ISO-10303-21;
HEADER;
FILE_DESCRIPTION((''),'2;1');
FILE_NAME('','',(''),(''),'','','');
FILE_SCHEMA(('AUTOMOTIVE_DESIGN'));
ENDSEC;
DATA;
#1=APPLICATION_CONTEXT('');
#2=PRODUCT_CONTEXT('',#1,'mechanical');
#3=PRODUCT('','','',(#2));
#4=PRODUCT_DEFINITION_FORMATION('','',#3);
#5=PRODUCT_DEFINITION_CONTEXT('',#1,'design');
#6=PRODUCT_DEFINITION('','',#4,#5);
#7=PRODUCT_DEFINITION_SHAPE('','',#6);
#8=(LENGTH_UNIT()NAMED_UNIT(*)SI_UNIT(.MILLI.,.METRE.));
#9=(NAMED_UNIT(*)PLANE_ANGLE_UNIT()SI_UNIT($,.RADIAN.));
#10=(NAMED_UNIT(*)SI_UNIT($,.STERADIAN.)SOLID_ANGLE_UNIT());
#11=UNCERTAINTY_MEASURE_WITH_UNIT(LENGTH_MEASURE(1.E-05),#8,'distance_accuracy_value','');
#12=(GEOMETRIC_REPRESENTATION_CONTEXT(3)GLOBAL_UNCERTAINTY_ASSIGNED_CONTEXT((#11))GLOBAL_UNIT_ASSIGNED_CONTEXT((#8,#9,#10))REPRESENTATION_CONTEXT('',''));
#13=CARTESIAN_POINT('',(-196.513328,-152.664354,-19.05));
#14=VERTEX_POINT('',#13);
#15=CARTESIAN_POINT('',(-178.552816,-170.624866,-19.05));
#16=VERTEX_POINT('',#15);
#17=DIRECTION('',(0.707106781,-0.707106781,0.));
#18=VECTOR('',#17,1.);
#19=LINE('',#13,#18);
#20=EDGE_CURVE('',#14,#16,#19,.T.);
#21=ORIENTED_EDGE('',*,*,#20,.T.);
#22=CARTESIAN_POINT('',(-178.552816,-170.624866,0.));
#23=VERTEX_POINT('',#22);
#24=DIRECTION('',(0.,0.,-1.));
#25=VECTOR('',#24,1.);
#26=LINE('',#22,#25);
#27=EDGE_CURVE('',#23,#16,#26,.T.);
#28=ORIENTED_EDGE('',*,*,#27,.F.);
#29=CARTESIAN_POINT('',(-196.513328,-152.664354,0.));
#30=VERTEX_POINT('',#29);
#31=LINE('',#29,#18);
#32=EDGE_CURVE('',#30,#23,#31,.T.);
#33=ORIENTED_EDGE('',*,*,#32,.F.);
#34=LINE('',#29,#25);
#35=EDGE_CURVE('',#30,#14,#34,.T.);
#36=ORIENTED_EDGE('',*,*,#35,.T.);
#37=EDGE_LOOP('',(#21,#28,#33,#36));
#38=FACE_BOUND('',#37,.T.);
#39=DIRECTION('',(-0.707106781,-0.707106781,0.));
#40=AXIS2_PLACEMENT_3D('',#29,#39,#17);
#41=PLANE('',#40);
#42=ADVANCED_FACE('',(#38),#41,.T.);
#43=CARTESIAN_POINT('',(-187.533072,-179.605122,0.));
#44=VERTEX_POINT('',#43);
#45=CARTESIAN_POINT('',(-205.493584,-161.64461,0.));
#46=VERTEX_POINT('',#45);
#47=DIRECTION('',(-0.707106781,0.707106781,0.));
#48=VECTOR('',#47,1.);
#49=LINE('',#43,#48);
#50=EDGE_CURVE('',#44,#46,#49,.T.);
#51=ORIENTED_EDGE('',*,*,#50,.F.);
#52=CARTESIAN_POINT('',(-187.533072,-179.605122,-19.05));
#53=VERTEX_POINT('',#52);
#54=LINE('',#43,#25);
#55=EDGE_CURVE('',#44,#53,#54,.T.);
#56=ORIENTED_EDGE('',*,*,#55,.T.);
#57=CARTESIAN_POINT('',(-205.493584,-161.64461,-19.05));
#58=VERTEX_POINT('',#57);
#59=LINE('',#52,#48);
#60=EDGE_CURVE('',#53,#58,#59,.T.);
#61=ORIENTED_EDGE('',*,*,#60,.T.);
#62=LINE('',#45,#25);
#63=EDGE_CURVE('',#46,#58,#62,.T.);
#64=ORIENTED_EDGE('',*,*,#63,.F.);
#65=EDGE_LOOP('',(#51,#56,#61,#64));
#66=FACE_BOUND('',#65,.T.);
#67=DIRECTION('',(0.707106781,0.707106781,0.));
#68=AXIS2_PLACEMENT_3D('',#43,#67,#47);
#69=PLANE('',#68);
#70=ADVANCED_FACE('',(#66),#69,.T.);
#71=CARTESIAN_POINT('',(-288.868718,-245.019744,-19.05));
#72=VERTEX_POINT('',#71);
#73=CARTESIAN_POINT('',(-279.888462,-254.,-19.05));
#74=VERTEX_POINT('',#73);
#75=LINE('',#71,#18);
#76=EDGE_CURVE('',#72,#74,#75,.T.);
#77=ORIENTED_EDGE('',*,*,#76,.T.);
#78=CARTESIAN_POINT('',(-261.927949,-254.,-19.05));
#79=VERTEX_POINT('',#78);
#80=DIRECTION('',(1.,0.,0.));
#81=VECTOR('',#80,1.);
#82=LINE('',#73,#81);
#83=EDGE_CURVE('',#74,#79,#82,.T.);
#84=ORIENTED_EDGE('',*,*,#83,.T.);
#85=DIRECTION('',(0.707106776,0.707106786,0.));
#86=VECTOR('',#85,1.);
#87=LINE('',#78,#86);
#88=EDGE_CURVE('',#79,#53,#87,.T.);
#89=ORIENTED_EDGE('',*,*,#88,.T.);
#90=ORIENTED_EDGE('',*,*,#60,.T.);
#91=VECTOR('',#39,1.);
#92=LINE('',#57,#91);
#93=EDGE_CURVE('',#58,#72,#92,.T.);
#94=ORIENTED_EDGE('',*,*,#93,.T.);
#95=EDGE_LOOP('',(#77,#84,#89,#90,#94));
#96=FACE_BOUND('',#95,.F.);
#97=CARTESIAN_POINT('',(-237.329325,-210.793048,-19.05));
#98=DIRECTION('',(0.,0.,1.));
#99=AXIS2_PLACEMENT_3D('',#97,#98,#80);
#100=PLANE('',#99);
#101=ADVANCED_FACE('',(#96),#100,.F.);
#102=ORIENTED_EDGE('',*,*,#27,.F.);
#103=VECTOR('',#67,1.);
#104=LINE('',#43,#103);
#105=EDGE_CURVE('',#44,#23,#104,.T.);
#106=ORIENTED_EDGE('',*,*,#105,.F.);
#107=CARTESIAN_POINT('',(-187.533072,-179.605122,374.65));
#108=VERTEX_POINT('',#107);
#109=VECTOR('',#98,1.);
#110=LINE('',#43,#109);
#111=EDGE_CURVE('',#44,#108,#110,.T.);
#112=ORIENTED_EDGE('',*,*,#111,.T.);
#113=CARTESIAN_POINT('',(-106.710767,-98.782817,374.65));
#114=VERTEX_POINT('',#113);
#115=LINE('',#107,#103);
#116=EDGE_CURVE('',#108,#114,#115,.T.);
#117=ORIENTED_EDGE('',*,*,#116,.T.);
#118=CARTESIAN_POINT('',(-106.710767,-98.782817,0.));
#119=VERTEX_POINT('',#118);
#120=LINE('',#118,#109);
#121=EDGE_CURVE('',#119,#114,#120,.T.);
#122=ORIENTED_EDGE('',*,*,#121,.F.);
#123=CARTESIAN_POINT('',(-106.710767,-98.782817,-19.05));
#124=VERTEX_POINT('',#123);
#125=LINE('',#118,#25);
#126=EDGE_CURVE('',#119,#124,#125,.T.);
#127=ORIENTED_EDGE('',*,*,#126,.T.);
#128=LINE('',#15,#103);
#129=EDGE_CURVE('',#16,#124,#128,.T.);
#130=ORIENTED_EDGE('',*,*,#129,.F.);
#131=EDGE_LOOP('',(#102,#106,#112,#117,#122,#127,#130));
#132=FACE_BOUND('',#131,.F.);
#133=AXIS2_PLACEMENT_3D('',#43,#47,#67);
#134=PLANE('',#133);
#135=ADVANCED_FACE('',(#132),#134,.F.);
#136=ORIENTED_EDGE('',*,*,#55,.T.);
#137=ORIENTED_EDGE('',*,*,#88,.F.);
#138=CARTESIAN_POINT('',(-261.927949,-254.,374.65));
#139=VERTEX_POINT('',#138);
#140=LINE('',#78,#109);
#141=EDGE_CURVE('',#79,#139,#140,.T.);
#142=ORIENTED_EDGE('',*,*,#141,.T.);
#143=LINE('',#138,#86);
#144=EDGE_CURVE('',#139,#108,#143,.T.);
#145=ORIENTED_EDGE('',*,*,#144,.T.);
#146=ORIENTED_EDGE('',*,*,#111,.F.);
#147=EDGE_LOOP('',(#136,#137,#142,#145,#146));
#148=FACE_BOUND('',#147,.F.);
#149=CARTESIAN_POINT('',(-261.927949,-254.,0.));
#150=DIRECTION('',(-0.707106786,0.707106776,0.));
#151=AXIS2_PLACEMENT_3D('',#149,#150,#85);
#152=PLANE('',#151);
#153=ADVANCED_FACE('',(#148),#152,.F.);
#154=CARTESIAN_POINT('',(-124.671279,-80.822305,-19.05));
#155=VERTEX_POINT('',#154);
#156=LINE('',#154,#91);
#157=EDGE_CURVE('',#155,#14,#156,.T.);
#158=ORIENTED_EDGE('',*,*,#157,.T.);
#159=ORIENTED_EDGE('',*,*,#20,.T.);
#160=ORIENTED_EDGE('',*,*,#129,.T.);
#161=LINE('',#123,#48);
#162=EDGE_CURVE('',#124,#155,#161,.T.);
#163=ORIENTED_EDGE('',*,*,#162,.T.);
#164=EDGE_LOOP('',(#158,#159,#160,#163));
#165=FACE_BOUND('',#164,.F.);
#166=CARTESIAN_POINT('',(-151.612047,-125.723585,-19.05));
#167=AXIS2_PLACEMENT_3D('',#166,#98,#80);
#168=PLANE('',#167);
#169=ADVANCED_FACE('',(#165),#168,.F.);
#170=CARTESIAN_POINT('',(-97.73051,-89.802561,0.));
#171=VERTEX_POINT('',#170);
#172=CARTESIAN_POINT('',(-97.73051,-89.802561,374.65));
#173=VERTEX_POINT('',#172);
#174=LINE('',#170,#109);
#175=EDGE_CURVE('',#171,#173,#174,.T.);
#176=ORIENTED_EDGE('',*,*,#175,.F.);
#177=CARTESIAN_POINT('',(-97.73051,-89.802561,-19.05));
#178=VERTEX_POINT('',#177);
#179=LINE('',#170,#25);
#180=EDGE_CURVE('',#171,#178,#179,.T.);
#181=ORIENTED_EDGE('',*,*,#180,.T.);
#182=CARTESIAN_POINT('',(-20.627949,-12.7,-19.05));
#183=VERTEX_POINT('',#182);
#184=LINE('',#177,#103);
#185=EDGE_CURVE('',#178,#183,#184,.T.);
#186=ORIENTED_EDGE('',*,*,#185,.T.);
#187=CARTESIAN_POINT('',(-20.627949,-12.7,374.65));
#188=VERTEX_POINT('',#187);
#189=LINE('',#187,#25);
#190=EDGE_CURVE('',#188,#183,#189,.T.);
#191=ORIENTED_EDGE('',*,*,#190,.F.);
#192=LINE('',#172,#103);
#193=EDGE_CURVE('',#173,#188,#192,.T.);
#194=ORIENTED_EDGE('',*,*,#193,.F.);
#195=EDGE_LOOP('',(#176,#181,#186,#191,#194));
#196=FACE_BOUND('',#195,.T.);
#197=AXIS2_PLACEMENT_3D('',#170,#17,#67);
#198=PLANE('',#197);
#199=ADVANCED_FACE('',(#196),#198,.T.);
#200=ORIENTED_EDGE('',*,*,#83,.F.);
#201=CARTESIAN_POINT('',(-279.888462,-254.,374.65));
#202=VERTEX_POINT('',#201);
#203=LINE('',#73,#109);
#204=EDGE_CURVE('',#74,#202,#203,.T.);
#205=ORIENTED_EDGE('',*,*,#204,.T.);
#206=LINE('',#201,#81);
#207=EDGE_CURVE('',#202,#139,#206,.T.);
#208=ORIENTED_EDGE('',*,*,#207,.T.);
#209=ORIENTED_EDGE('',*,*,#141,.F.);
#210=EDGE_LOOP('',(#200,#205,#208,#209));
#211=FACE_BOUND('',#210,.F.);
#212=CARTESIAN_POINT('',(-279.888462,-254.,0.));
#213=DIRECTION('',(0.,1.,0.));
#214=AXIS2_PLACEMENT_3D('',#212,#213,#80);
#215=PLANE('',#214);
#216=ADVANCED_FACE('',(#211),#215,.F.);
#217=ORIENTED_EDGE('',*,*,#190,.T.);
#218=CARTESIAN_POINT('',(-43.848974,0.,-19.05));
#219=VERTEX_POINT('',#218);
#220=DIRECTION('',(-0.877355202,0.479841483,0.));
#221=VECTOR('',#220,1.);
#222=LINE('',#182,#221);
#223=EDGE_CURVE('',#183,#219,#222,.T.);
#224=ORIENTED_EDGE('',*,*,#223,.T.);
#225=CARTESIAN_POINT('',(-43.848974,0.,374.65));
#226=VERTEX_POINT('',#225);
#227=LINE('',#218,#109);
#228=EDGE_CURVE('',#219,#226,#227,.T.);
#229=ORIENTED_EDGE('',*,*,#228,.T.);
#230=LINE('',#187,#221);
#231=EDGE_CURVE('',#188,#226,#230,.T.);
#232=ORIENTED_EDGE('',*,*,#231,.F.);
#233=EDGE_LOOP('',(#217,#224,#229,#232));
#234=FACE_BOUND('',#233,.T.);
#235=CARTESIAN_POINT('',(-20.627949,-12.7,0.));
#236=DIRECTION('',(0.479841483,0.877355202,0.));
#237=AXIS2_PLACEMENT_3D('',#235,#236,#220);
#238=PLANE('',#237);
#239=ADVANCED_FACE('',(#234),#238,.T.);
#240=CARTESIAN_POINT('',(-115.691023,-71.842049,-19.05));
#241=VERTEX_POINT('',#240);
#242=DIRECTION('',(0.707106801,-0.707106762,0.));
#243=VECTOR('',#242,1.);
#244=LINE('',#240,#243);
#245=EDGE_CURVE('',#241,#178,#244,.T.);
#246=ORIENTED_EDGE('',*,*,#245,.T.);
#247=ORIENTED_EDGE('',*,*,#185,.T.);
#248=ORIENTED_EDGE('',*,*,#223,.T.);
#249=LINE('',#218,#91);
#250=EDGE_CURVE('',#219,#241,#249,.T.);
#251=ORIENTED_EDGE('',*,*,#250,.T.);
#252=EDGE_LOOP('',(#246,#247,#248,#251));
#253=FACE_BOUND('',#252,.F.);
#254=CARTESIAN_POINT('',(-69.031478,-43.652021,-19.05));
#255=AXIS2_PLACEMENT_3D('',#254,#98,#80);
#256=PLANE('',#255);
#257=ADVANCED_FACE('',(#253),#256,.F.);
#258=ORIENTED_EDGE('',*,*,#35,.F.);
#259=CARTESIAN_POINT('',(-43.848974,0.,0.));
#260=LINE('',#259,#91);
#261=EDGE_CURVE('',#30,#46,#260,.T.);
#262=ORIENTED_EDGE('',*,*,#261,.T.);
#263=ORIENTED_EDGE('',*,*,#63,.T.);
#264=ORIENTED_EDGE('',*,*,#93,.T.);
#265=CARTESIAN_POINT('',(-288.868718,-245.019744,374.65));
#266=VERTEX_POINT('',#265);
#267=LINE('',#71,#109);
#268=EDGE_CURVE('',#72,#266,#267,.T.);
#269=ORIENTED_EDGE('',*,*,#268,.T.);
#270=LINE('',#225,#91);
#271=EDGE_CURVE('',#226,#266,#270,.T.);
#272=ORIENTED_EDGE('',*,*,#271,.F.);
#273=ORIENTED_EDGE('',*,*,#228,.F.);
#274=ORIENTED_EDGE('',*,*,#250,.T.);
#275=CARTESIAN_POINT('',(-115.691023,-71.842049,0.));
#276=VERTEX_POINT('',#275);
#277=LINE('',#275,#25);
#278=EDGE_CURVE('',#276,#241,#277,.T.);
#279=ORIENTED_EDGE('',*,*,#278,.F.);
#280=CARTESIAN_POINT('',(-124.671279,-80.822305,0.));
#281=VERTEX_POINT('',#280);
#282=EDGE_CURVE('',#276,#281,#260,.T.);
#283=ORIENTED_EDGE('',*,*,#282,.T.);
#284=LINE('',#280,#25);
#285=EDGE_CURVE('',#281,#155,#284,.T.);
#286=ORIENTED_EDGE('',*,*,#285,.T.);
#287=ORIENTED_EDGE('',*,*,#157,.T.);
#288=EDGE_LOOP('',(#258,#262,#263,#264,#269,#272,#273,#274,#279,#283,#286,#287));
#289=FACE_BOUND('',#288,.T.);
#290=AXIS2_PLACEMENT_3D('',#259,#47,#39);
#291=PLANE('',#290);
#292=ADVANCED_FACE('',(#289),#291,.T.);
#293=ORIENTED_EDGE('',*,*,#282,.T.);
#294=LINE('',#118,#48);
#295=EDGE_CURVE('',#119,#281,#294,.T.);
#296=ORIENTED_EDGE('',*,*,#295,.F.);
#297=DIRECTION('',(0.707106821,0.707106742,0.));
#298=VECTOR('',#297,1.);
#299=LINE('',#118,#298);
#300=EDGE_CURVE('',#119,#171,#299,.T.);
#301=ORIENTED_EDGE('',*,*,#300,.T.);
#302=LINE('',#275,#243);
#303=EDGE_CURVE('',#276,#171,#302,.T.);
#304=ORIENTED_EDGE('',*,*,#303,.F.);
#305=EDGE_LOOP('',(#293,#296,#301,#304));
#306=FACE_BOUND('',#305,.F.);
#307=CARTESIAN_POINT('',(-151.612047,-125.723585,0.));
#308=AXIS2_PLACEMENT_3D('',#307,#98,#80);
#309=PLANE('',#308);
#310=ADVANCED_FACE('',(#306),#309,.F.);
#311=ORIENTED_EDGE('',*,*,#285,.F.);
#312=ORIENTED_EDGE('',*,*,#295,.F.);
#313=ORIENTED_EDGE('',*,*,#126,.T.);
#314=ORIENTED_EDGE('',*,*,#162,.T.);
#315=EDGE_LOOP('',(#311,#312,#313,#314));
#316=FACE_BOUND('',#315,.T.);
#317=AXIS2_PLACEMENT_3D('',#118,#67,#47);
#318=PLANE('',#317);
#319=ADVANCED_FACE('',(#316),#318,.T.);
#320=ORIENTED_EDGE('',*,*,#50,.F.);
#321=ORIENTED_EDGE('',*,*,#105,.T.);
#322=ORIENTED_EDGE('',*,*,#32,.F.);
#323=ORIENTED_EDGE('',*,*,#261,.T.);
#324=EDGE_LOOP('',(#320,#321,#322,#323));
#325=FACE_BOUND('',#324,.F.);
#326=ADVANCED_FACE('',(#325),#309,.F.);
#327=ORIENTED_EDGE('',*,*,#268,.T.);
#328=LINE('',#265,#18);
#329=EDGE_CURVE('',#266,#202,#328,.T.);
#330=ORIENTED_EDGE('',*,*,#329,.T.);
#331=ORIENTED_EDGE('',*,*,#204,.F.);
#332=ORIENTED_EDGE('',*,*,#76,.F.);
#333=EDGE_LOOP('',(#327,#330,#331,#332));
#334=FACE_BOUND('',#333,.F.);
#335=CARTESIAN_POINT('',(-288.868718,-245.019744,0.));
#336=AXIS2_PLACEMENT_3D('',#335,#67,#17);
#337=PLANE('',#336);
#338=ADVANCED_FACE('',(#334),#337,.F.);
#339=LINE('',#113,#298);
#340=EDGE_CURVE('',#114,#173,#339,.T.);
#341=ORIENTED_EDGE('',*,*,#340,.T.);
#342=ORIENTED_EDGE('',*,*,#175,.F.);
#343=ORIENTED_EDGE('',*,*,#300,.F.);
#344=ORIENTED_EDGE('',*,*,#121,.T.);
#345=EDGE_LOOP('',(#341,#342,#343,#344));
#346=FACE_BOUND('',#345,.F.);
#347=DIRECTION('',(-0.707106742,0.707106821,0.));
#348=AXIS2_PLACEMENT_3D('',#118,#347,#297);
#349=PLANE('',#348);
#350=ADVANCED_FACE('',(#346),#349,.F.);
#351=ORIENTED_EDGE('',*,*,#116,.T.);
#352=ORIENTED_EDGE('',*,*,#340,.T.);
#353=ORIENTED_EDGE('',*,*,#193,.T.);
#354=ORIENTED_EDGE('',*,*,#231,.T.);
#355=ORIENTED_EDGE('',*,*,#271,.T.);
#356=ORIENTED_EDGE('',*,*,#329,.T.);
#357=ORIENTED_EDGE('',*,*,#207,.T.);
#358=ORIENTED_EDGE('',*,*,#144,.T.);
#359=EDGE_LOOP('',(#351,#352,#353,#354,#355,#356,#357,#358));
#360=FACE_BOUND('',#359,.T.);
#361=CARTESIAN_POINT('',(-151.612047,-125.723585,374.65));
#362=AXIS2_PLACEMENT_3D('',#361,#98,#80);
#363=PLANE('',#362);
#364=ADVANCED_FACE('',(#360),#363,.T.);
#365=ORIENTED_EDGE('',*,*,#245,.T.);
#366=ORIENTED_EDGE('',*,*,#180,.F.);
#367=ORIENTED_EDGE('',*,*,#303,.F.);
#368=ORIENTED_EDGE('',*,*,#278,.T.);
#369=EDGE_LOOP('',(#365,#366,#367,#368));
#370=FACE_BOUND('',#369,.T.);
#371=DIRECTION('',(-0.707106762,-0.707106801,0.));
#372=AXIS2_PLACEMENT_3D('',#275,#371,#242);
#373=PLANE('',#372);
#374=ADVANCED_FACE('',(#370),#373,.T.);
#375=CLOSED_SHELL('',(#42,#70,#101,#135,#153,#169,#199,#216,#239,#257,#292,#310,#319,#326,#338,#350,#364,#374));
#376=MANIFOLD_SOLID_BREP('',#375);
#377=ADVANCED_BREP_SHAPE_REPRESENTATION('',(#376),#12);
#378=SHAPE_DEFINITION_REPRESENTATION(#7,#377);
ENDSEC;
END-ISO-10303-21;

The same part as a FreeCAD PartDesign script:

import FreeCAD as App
import Part
import Sketcher

V = App.Vector
Q = App.Units.Quantity


def add_polygon(sketch, points):
    """Adds a closed chain of lines whose ends are joined by coincident constraints."""
    first, n = sketch.GeometryCount, len(points)
    for a, b in zip(points, points[1:] + points[:1]):
        sketch.addGeometry(Part.LineSegment(App.Vector(*a, 0), App.Vector(*b, 0)), False)
    for i in range(n):
        sketch.addConstraint(Sketcher.Constraint("Coincident", first + i, 2, first + (i + 1) % n, 1))

doc = App.newDocument("Part")
body = doc.addObject("PartDesign::Body", "Body")

# Sketch on XY plane
sketch1 = body.newObject("Sketcher::SketchObject", "Sketch")
sketch1.AttachmentSupport = (doc.getObject("XY_Plane"), [""])
sketch1.MapMode = "FlatFace"
add_polygon(sketch1, [(-106.710767, -98.782817), (-97.73051, -89.802561), (-20.627949, -12.7), (-43.848974, 0), (-288.868718, -245.019744), (-279.888462, -254), (-261.927949, -254), (-187.533072, -179.605122)])  # lines 0-7
sketch1.addConstraint([
    Sketcher.Constraint("Horizontal", 5),
    Sketcher.Constraint("PointOnObject", 2, 2, -1),
    Sketcher.Constraint("DistanceY", 4, 2, -1, 1, Q("10 in")),
    Sketcher.Constraint("Distance", 0, Q("0.5 in")),
    Sketcher.Constraint("Distance", 4, Q("0.5 in")),
    Sketcher.Constraint("Distance", 7, Q("4.5 in")),
    Sketcher.Constraint("DistanceY", 1, 2, -1, 1, Q("0.5 in")),
    Sketcher.Constraint("DistanceX", 5, 2, 1, 2, Q("9.5 in")),
    Sketcher.Constraint("DistanceX", 6, 2, 2, 2, 143.684098),
    Sketcher.Constraint("DistanceX", 5, 1, 5, 2, 17.960513),
    Sketcher.Constraint("DistanceX", 0, 2, -1, 1, 97.73051),
    Sketcher.Constraint("DistanceY", 0, 2, -1, 1, 89.802561),
    Sketcher.Constraint("DistanceX", 1, 2, -1, 1, 20.627949),
    Sketcher.Constraint("DistanceX", 3, 2, -1, 1, 288.868718),
    Sketcher.Constraint("DistanceX", 6, 2, -1, 1, 187.533072),
    Sketcher.Constraint("DistanceX", 7, 2, 1, 2, 86.082818),
])
pad1 = body.newObject("PartDesign::Pad", "Pad")
pad1.Profile = sketch1
pad1.Length = Q("14.75 in")

# Sketch on XY plane
sketch2 = body.newObject("Sketcher::SketchObject", "Sketch001")
sketch2.AttachmentSupport = (doc.getObject("XY_Plane"), [""])
sketch2.MapMode = "FlatFace"
add_polygon(sketch2, [(-21, -13), (-44, 0), (-116, -72), (-98, -90)])  # lines 0-3
add_polygon(sketch2, [(-125, -81), (-197, -153), (-179, -171), (-107, -99)])  # lines 4-7
add_polygon(sketch2, [(-205, -162), (-289, -245), (-280, -254), (-262, -254), (-188, -180)])  # lines 8-12
sketch2.addConstraint([
    Sketcher.Constraint("Horizontal", 10),
    Sketcher.Constraint("PointOnObject", 0, 2, -1),
    Sketcher.Constraint("Perpendicular", 1, 2),
    Sketcher.Constraint("Perpendicular", 2, 3),
    Sketcher.Constraint("Parallel", 3, 4),
    Sketcher.Constraint("Perpendicular", 4, 5),
    Sketcher.Constraint("Perpendicular", 5, 6),
    Sketcher.Constraint("Perpendicular", 6, 7),
    Sketcher.Constraint("Perpendicular", 7, 8),
    Sketcher.Constraint("Perpendicular", 8, 9),
    Sketcher.Constraint("Perpendicular", 9, 11),
    Sketcher.Constraint("Perpendicular", 11, 12),
    Sketcher.Constraint("Equal", 1, 4),
    Sketcher.Constraint("Equal", 2, 5),
    Sketcher.Constraint("Equal", 7, 12),
    Sketcher.Constraint("Distance", 1, Q("4 in")),
    Sketcher.Constraint("Distance", 2, Q("1 in")),
    Sketcher.Constraint("DistanceY", 9, 2, -1, 1, Q("10 in")),
    Sketcher.Constraint("Angle", 1, Q("-135 deg")),
    Sketcher.Constraint("Distance", 9, Q("0.5 in")),
    Sketcher.Constraint("DistanceY", 3, 2, -1, 1, Q("0.5 in")),
    Sketcher.Constraint("DistanceX", 8, 2, 5, 2, 110.315902),
    Sketcher.Constraint("DistanceX", 2, 2, -1, 1, 97.73051),
    Sketcher.Constraint("DistanceX", 4, 2, -1, 1, 196.513328),
    Sketcher.Constraint("DistanceX", 11, 2, -1, 1, 187.533072),
    Sketcher.Constraint("DistanceY", 8, 2, 4, 2, 92.35539),
])
pad2 = body.newObject("PartDesign::Pad", "Pad001")
pad2.Profile = sketch2
pad2.Length = Q("0.75 in")
pad2.Reversed = True

doc.recompute()
